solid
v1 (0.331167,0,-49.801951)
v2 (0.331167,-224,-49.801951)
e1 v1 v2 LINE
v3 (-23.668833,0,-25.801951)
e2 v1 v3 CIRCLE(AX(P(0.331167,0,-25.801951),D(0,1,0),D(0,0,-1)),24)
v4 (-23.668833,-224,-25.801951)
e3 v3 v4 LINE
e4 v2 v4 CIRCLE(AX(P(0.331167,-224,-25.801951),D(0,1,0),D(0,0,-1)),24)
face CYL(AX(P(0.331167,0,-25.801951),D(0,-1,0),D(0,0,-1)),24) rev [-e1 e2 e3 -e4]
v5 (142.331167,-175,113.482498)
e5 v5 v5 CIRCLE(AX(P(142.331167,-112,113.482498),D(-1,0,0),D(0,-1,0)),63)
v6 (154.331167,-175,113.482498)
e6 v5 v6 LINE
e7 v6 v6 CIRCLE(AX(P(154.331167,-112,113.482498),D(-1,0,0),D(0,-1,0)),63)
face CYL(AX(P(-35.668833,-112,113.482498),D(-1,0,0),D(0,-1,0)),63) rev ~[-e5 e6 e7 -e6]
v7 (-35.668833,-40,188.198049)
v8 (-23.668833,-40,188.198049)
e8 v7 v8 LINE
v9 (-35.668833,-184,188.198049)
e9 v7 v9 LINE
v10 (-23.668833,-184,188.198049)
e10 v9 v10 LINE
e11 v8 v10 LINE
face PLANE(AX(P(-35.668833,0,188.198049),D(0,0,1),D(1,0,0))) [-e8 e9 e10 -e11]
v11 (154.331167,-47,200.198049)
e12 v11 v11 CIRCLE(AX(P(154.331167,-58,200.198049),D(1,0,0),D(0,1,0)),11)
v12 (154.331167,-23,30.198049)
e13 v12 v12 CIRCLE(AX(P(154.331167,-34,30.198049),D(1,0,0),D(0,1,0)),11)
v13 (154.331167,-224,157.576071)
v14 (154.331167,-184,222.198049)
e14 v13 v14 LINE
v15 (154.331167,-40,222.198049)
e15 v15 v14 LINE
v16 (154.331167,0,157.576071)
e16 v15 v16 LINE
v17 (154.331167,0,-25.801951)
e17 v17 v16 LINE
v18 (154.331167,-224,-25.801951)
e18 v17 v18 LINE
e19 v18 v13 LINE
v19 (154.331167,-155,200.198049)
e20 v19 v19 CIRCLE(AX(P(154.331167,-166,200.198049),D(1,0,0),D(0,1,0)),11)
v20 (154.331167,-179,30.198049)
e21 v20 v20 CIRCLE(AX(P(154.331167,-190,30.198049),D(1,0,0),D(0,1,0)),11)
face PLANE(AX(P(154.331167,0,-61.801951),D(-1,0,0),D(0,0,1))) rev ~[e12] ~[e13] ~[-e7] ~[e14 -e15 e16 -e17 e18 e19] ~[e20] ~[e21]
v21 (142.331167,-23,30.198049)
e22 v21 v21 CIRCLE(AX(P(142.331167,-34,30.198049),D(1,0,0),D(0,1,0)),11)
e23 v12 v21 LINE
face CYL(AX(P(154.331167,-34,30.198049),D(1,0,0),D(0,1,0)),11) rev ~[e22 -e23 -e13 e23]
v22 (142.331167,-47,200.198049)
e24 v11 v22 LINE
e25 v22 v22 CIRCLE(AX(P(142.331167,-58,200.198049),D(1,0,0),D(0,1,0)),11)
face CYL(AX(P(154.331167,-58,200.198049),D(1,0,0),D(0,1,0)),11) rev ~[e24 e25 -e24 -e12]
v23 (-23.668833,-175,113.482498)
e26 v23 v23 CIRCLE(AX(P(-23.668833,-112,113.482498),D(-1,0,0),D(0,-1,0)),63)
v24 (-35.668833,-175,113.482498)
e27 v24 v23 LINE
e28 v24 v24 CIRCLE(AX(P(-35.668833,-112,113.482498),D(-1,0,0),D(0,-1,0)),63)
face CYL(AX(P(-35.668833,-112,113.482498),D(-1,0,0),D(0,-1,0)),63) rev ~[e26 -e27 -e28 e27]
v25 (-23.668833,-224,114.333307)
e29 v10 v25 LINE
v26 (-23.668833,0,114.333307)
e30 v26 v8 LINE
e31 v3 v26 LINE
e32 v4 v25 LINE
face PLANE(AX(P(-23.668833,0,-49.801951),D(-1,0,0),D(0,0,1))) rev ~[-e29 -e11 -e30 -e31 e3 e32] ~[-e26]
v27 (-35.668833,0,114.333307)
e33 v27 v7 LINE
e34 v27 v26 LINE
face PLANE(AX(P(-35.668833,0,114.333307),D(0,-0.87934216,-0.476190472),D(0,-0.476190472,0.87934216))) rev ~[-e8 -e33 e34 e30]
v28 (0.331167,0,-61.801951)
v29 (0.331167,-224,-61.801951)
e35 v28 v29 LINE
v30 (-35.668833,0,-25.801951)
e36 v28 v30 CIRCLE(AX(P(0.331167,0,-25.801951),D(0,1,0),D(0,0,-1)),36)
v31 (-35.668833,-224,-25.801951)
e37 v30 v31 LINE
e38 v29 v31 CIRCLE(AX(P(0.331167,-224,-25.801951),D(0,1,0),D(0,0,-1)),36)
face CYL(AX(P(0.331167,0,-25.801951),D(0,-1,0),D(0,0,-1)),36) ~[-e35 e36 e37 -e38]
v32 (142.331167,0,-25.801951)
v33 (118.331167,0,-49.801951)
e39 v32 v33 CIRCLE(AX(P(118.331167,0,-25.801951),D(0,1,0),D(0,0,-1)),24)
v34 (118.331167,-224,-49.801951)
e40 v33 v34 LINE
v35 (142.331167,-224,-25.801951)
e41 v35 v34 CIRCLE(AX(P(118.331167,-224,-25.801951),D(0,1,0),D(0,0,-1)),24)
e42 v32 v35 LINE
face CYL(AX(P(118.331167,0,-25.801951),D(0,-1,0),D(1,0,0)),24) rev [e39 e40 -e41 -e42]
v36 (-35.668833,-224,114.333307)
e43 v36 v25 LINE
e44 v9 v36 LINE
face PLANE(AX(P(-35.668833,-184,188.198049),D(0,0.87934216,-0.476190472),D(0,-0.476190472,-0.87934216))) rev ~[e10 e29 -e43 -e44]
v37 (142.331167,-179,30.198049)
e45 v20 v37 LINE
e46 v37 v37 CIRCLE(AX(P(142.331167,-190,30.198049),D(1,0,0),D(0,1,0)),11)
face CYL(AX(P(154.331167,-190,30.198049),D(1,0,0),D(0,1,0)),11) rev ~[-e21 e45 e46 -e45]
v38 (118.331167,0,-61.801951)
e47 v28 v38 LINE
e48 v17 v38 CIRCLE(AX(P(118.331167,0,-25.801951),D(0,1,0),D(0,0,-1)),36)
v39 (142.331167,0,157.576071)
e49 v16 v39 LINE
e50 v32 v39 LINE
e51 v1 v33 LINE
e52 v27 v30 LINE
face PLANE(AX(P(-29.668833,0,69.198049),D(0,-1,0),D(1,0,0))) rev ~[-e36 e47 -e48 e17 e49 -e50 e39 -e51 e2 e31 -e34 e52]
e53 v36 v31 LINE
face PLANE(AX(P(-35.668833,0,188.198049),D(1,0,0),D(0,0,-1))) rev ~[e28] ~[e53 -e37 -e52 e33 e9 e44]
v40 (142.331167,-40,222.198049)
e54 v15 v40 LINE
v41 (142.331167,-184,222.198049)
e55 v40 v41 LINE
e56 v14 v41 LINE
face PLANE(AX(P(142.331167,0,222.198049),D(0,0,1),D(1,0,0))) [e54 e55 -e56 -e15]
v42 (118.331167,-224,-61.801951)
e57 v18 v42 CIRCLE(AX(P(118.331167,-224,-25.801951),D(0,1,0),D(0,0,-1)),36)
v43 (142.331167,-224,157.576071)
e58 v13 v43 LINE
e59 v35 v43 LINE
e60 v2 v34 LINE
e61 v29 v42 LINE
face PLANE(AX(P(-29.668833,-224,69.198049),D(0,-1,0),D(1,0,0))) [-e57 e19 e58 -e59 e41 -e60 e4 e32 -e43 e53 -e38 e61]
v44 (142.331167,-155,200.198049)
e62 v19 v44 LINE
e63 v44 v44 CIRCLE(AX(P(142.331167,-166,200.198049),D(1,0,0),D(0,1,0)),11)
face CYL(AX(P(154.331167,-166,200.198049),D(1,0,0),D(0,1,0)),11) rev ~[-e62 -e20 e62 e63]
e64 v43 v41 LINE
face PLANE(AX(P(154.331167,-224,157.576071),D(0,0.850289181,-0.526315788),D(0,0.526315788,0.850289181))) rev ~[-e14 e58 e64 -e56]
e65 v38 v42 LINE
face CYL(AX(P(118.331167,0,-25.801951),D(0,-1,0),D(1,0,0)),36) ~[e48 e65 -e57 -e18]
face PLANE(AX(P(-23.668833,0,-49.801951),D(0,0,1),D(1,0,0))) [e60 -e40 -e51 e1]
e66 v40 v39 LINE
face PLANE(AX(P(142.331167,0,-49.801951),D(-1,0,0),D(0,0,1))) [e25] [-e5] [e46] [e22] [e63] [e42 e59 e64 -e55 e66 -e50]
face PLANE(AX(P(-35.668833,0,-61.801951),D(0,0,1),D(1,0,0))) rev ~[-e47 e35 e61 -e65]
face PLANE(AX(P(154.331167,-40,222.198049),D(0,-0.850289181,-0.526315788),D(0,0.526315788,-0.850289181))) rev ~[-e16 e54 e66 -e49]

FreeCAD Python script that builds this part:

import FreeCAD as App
import Part
import Sketcher

V = App.Vector


def edges_at(feature, points):
    """Names of the edges that pass closest to the given points."""
    edges = feature.Shape.Edges
    near = lambda p: min(range(len(edges)), key=lambda i: edges[i].distToShape(Part.Vertex(*p))[0])
    return sorted({f"Edge{near(p) + 1}" for p in points})


def add_polygon(sketch, points):
    """Adds a closed chain of lines whose ends are joined by coincident constraints."""
    first, n = sketch.GeometryCount, len(points)
    for a, b in zip(points, points[1:] + points[:1]):
        sketch.addGeometry(Part.LineSegment(App.Vector(*a, 0), App.Vector(*b, 0)), False)
    for i in range(n):
        sketch.addConstraint(Sketcher.Constraint("Coincident", first + i, 2, first + (i + 1) % n, 1))

doc = App.newDocument("Part")
params = doc.addObject("Spreadsheet::Sheet", "Params")
for row, (alias, value) in enumerate([
    ("sketch1_width", "190 mm"),
    ("sketch1_width2", "12 mm"),
    ("sketch1_height", "250 mm"),
    ("sketch1_height2", "284 mm"),
    ("sketch1_height3", "272 mm"),
    ("pad1_length", "224 mm"),
    ("fillet_radius", "24 mm"),
    ("fillet2_radius", "36 mm"),
    ("sketch2_width", "40 mm"),
    ("sketch2_length", "84.000001 mm"),
    ("pocket1_length", "12 mm"),
    ("sketch3_width", "40 mm"),
    ("sketch3_length", "76 mm"),
    ("pocket2_length", "12 mm"),
    ("sketch4_diameter", "126 mm"),
    ("pocket3_length", "190 mm"),
    ("sketch5_diameter", "22 mm"),
    ("pocket4_length", "25 mm"),
], start=1):
    params.set(f"A{row}", alias)
    params.set(f"B{row}", "=" + value)
    params.setAlias(f"B{row}", alias)

body = doc.addObject("PartDesign::Body", "Body")

# Sketch on XZ plane
sketch1 = doc.addObject("Sketcher::SketchObject", "Sketch")
body.addObject(sketch1)
sketch1.AttachmentSupport = (doc.XZ_Plane, [""])
sketch1.MapMode = "FlatFace"
add_polygon(sketch1, [(-36, 188), (-36, -62), (154, -62), (154, 222), (142, 222), (142, -50), (-24, -50), (-24, 188)])  # lines 0-7
sketch1.addConstraint(Sketcher.Constraint("Vertical", 0))
sketch1.addConstraint(Sketcher.Constraint("Horizontal", 1))
sketch1.addConstraint(Sketcher.Constraint("Vertical", 2))
sketch1.addConstraint(Sketcher.Constraint("Horizontal", 3))
sketch1.addConstraint(Sketcher.Constraint("Vertical", 4))
sketch1.addConstraint(Sketcher.Constraint("Horizontal", 5))
sketch1.addConstraint(Sketcher.Constraint("Vertical", 6))
sketch1.addConstraint(Sketcher.Constraint("Horizontal", 7))
sketch1.addConstraint(Sketcher.Constraint("Equal", 3, 7))
sketch1.addConstraint(Sketcher.Constraint("DistanceX", 1, 1, 1, 2, 190.0))
sketch1.addConstraint(Sketcher.Constraint("DistanceX", 3, 2, 3, 1, 12.0))
sketch1.addConstraint(Sketcher.Constraint("DistanceY", 0, 2, 0, 1, 250.0))
sketch1.addConstraint(Sketcher.Constraint("DistanceY", 2, 1, 2, 2, 284.0))
sketch1.addConstraint(Sketcher.Constraint("DistanceY", 4, 2, 4, 1, 272.0))
sketch1.addConstraint(Sketcher.Constraint("DistanceY", 0, 2, -1, 1, 61.801951))
sketch1.addConstraint(Sketcher.Constraint("DistanceX", 0, 2, -1, 1, 35.668833))
sketch1.setExpression("Constraints[17]", "Params.sketch1_width")
sketch1.setExpression("Constraints[18]", "Params.sketch1_width2")
sketch1.setExpression("Constraints[19]", "Params.sketch1_height")
sketch1.setExpression("Constraints[20]", "Params.sketch1_height2")
sketch1.setExpression("Constraints[21]", "Params.sketch1_height3")
pad1 = doc.addObject("PartDesign::Pad", "Pad")
body.addObject(pad1)
pad1.Profile = sketch1
pad1.setExpression("Length", "Params.pad1_length")
doc.recompute()

fillet = doc.addObject("PartDesign::Fillet", "Fillet")
body.addObject(fillet)
fillet.Base = (pad1, edges_at(pad1, [(-23.669, -112, -49.802), (142.331, -112, -49.802)]))
fillet.setExpression("Radius", "Params.fillet_radius")
doc.recompute()

fillet2 = doc.addObject("PartDesign::Fillet", "Fillet001")
body.addObject(fillet2)
fillet2.Base = (fillet, edges_at(fillet, [(154.331, -112, -61.802), (-35.669, -112, -61.802)]))
fillet2.setExpression("Radius", "Params.fillet2_radius")

# Sketch on YZ plane
sketch2 = doc.addObject("Sketcher::SketchObject", "Sketch001")
body.addObject(sketch2)
sketch2.AttachmentSupport = (doc.YZ_Plane, [""])
sketch2.MapMode = "FlatFace"
sketch2.AttachmentOffset = App.Placement(V(0, 0, -35.668833), App.Rotation())
add_polygon(sketch2, [(0, 114), (-40, 188), (0, 188)])  # lines 0-2
add_polygon(sketch2, [(-224, 188), (-184, 188), (-224, 114)])  # lines 3-5
sketch2.addConstraint(Sketcher.Constraint("Horizontal", 1))
sketch2.addConstraint(Sketcher.Constraint("Vertical", 2))
sketch2.addConstraint(Sketcher.Constraint("Horizontal", 3))
sketch2.addConstraint(Sketcher.Constraint("Vertical", 5))
sketch2.addConstraint(Sketcher.Constraint("PointOnObject", 1, 2, -2))
sketch2.addConstraint(Sketcher.Constraint("Horizontal", 1, 2, 3, 2))
sketch2.addConstraint(Sketcher.Constraint("Horizontal", 2, 2, 4, 2))
sketch2.addConstraint(Sketcher.Constraint("Equal", 1, 3))
sketch2.addConstraint(Sketcher.Constraint("DistanceX", 1, 1, 1, 2, 40.0))
sketch2.addConstraint(Sketcher.Constraint("Distance", 0, 84.000001))
sketch2.addConstraint(Sketcher.Constraint("DistanceX", 3, 2, -1, 1, 184.0))
sketch2.addConstraint(Sketcher.Constraint("DistanceY", -1, 1, 0, 2, 188.198049))
sketch2.setExpression("Constraints[14]", "Params.sketch2_width")
sketch2.setExpression("Constraints[15]", "Params.sketch2_length")
pocket1 = doc.addObject("PartDesign::Pocket", "Pocket")
body.addObject(pocket1)
pocket1.Profile = sketch2
pocket1.setExpression("Length", "Params.pocket1_length")
pocket1.Reversed = True

# Sketch on YZ plane
sketch3 = doc.addObject("Sketcher::SketchObject", "Sketch002")
body.addObject(sketch3)
sketch3.AttachmentSupport = (doc.YZ_Plane, [""])
sketch3.MapMode = "FlatFace"
sketch3.AttachmentOffset = App.Placement(V(0, 0, 154.331167), App.Rotation())
add_polygon(sketch3, [(-224, 222), (-224, 158), (-184, 222)])  # lines 0-2
add_polygon(sketch3, [(0, 222), (-40, 222), (0, 158)])  # lines 3-5
sketch3.addConstraint(Sketcher.Constraint("Vertical", 0))
sketch3.addConstraint(Sketcher.Constraint("Horizontal", 2))
sketch3.addConstraint(Sketcher.Constraint("Horizontal", 3))
sketch3.addConstraint(Sketcher.Constraint("Vertical", 5))
sketch3.addConstraint(Sketcher.Constraint("PointOnObject", 4, 2, -2))
sketch3.addConstraint(Sketcher.Constraint("Horizontal", 2, 2, 3, 2))
sketch3.addConstraint(Sketcher.Constraint("Horizontal", 0, 2, 4, 2))
sketch3.addConstraint(Sketcher.Constraint("Equal", 2, 3))
sketch3.addConstraint(Sketcher.Constraint("DistanceX", 2, 2, 2, 1, 40.0))
sketch3.addConstraint(Sketcher.Constraint("Distance", 1, 76.0))
sketch3.addConstraint(Sketcher.Constraint("DistanceX", 0, 2, -1, 1, 224.0))
sketch3.addConstraint(Sketcher.Constraint("DistanceY", -1, 1, 0, 2, 157.576071))
sketch3.setExpression("Constraints[14]", "Params.sketch3_width")
sketch3.setExpression("Constraints[15]", "Params.sketch3_length")
pocket2 = doc.addObject("PartDesign::Pocket", "Pocket001")
body.addObject(pocket2)
pocket2.Profile = sketch3
pocket2.setExpression("Length", "Params.pocket2_length")

# Sketch on YZ plane
sketch4 = doc.addObject("Sketcher::SketchObject", "Sketch003")
body.addObject(sketch4)
sketch4.AttachmentSupport = (doc.YZ_Plane, [""])
sketch4.MapMode = "FlatFace"
sketch4.AttachmentOffset = App.Placement(V(0, 0, -35.668833), App.Rotation())
sketch4.addGeometry(Part.Circle(V(-112, 113, 0), V(0, 0, 1), 63), False)
sketch4.addConstraint(Sketcher.Constraint("Diameter", 0, 126.0))
sketch4.addConstraint(Sketcher.Constraint("DistanceX", 0, 3, -1, 1, 112.0))
sketch4.addConstraint(Sketcher.Constraint("DistanceY", -1, 1, 0, 3, 113.482498))
sketch4.setExpression("Constraints[0]", "Params.sketch4_diameter")
pocket3 = doc.addObject("PartDesign::Pocket", "Pocket002")
body.addObject(pocket3)
pocket3.Profile = sketch4
pocket3.setExpression("Length", "Params.pocket3_length")
pocket3.Reversed = True

# Sketch on YZ plane
sketch5 = doc.addObject("Sketcher::SketchObject", "Sketch004")
body.addObject(sketch5)
sketch5.AttachmentSupport = (doc.YZ_Plane, [""])
sketch5.MapMode = "FlatFace"
sketch5.AttachmentOffset = App.Placement(V(0, 0, 154.331167), App.Rotation())
sketch5.addGeometry(Part.Circle(V(-166, 200, 0), V(0, 0, 1), 11), False)
sketch5.addGeometry(Part.Circle(V(-58, 200, 0), V(0, 0, 1), 11), False)
sketch5.addGeometry(Part.Circle(V(-34, 30, 0), V(0, 0, 1), 11), False)
sketch5.addGeometry(Part.Circle(V(-190, 30, 0), V(0, 0, 1), 11), False)
sketch5.addConstraint(Sketcher.Constraint("Equal", 0, 1))
sketch5.addConstraint(Sketcher.Constraint("Equal", 1, 2))
sketch5.addConstraint(Sketcher.Constraint("Equal", 2, 3))
sketch5.addConstraint(Sketcher.Constraint("Horizontal", 0, 3, 1, 3))
sketch5.addConstraint(Sketcher.Constraint("Horizontal", 2, 3, 3, 3))
sketch5.addConstraint(Sketcher.Constraint("Diameter", 0, 22.0))
sketch5.addConstraint(Sketcher.Constraint("DistanceX", 0, 3, -1, 1, 166.0))
sketch5.addConstraint(Sketcher.Constraint("DistanceX", 1, 3, -1, 1, 58.0))
sketch5.addConstraint(Sketcher.Constraint("DistanceX", 2, 3, -1, 1, 34.0))
sketch5.addConstraint(Sketcher.Constraint("DistanceX", 3, 3, -1, 1, 190.0))
sketch5.addConstraint(Sketcher.Constraint("DistanceY", 2, 3, 1, 3, 170.0))
sketch5.addConstraint(Sketcher.Constraint("DistanceY", -1, 1, 0, 3, 200.198049))
sketch5.setExpression("Constraints[5]", "Params.sketch5_diameter")
pocket4 = doc.addObject("PartDesign::Pocket", "Pocket003")
body.addObject(pocket4)
pocket4.Profile = sketch5
pocket4.setExpression("Length", "Params.pocket4_length")

doc.recompute()
